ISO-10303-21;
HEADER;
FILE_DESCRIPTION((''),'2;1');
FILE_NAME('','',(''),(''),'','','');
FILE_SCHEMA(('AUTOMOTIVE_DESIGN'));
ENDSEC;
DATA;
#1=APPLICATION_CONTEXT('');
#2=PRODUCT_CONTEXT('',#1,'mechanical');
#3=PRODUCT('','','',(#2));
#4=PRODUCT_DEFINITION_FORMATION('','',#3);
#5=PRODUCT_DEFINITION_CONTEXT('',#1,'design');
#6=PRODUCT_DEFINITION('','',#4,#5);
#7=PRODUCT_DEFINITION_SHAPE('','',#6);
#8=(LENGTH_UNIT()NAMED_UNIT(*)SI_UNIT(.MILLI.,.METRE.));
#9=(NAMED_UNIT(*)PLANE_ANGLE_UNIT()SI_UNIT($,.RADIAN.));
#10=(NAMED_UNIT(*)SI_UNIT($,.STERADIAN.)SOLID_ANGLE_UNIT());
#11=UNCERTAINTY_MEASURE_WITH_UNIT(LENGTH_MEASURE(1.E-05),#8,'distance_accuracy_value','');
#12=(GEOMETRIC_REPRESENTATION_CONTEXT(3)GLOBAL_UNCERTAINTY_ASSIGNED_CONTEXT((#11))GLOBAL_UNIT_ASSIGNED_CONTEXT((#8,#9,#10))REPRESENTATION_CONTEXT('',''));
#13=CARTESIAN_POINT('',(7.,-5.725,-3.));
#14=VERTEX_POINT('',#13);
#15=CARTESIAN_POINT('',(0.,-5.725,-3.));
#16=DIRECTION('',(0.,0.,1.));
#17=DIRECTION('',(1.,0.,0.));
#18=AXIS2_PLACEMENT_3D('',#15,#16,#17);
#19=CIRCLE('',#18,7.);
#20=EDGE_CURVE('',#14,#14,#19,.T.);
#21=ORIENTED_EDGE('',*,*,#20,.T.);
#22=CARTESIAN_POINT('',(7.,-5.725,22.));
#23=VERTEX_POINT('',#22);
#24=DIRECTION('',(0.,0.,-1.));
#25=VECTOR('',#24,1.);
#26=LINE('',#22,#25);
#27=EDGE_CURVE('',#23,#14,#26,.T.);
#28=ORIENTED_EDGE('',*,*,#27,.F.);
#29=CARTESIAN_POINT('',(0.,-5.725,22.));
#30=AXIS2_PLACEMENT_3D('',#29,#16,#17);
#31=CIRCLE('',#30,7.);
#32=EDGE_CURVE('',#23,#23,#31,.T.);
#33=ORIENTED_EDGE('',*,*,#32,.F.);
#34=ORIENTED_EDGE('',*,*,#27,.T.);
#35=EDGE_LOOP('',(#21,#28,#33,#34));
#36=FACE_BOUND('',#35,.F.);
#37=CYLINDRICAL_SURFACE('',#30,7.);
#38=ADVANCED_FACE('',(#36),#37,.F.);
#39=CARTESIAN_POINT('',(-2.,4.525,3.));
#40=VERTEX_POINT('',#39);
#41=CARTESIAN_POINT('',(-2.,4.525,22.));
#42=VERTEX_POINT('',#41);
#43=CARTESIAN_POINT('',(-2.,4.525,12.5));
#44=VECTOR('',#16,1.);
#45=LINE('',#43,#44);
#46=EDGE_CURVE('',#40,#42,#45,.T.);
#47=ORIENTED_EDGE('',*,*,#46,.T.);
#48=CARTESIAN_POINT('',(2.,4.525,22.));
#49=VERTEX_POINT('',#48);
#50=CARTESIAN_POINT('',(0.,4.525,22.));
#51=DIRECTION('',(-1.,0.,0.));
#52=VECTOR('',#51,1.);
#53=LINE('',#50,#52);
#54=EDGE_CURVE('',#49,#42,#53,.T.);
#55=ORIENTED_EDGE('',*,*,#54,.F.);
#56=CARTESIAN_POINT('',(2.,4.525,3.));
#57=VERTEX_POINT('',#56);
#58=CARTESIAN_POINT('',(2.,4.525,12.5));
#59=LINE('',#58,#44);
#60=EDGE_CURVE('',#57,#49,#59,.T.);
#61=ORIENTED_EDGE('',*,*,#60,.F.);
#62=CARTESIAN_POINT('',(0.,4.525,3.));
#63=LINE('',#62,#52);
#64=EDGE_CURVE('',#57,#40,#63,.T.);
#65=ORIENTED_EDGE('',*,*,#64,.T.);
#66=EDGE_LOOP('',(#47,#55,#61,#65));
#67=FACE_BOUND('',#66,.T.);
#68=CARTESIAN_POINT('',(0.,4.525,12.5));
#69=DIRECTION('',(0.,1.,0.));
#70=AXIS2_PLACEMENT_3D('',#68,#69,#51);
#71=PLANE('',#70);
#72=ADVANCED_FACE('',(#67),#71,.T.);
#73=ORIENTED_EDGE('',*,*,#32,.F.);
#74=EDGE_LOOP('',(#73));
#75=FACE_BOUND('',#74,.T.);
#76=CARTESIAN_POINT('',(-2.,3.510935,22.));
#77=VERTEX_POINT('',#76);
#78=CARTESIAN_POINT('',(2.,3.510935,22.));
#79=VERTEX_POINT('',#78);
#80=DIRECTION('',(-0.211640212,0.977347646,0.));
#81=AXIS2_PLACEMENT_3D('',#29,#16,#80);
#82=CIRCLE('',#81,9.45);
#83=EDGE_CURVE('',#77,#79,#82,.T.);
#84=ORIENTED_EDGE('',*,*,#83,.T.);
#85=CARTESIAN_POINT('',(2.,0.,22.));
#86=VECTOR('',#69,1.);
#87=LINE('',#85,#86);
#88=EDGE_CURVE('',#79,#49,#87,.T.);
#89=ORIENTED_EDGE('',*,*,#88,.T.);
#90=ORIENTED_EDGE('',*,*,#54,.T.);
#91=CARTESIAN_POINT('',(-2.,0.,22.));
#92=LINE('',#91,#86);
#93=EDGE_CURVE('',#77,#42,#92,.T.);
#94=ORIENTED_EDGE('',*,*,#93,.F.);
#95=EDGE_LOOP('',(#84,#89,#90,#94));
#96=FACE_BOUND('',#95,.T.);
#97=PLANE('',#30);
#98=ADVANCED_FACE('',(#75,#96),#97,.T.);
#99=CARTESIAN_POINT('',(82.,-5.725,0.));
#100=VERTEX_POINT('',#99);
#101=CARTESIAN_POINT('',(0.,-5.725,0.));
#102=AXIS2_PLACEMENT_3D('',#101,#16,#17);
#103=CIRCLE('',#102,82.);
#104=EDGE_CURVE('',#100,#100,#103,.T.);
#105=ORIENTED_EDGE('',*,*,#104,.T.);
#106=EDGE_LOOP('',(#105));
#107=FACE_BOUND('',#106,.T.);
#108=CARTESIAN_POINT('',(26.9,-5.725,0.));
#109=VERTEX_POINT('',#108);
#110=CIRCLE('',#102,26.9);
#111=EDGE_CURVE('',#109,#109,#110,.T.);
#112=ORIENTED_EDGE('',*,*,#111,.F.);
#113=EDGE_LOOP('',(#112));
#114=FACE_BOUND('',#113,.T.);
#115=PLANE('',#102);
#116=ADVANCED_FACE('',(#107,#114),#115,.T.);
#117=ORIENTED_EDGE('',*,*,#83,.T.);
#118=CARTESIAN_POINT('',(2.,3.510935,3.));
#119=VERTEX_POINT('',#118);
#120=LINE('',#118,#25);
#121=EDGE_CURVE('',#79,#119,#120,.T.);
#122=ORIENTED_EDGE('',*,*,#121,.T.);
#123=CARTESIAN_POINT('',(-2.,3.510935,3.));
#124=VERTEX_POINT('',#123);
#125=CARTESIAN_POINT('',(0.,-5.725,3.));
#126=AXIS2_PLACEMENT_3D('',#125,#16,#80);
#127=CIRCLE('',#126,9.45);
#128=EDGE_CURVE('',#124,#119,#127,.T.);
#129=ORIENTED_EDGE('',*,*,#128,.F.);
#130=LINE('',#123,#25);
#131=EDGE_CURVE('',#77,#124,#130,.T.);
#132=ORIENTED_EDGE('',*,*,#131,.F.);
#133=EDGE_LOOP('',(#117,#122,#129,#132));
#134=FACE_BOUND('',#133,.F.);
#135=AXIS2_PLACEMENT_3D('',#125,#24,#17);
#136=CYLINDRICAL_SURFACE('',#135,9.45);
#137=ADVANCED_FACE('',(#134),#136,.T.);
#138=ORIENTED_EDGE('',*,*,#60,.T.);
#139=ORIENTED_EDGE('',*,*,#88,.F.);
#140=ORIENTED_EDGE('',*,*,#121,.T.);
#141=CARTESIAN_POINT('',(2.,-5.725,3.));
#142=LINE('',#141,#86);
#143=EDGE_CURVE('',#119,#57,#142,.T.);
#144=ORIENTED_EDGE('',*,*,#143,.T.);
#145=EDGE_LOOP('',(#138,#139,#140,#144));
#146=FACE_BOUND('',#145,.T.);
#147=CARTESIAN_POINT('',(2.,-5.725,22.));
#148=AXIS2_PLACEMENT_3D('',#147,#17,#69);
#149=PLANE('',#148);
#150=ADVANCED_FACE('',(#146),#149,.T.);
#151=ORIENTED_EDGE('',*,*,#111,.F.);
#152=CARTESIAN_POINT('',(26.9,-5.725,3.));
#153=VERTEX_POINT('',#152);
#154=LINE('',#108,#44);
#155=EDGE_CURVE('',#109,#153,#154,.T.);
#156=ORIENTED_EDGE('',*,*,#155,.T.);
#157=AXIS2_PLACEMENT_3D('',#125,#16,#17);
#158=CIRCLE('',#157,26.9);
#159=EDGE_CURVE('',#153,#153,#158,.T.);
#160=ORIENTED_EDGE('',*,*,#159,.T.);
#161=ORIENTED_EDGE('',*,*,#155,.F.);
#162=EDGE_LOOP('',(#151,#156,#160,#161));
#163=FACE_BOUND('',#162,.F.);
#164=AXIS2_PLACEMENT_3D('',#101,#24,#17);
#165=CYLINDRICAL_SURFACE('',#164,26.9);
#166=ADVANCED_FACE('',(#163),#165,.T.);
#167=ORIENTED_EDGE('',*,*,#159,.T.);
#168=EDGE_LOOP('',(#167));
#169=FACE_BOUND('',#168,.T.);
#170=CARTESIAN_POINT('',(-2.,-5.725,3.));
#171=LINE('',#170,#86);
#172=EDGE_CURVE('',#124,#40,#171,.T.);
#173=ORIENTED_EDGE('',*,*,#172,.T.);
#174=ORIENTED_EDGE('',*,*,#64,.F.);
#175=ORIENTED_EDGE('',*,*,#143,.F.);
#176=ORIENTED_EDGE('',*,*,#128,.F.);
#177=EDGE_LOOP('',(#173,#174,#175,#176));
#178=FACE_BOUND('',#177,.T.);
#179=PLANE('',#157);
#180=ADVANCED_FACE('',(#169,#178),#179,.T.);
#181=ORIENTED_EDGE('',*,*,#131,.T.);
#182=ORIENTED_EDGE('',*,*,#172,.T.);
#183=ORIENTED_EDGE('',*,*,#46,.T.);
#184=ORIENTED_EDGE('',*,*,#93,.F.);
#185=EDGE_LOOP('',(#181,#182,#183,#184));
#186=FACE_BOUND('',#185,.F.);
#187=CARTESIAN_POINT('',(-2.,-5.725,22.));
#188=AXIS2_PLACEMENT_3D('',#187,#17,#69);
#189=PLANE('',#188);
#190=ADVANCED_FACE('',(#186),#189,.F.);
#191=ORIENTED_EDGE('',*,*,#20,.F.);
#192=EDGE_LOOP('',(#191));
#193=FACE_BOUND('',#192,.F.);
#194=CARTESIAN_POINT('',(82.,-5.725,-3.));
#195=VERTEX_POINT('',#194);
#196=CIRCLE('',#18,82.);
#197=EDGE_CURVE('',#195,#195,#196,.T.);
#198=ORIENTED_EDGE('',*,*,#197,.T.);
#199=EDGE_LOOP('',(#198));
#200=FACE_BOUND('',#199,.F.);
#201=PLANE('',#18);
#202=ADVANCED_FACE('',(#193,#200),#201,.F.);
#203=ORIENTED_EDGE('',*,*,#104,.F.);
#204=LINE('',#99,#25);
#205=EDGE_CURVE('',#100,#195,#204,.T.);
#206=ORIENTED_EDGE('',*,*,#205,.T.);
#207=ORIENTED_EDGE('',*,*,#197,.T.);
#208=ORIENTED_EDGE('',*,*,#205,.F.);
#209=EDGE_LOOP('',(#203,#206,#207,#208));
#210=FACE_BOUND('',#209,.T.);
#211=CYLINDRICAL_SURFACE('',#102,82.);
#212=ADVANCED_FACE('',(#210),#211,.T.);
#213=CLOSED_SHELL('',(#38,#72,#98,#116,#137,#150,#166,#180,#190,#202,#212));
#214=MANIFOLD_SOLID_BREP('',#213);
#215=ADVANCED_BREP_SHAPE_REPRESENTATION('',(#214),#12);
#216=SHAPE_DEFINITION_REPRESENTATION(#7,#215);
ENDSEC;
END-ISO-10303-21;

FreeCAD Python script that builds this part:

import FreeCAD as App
import Part
import Sketcher
Q = App.Units.Quantity

doc = App.newDocument("Part")
params = doc.addObject("Spreadsheet::Sheet", "Params")
for row, (alias, value) in enumerate([
    ("sketch1_diameter", "164 mm"),
    ("pad1_length", "3 mm"),
    ("sketch2_diameter", "53.8 mm"),
    ("pad2_length", "3 mm"),
    ("sketch3_diameter", "18.9 mm"),
    ("pad3_length", "19 mm"),
    ("sketch4_width", "4 mm"),
    ("sketch4_height", "11.45 mm"),
    ("pad4_length", "19 mm"),
    ("sketch5_width", "4 mm"),
    ("sketch5_height", "11.45 mm"),
    ("pad5_length", "20 mm"),
    ("sketch6_width", "4 mm"),
    ("sketch6_height", "19 mm"),
    ("pocket1_length", "1.2 mm"),
    ("sketch7_diameter", "14 mm"),
    ("pocket2_length", "25 mm"),
], start=1):
    params.set(f"A{row}", alias)
    params.set(f"B{row}", "=" + value)
    params.setAlias(f"B{row}", alias)

body = doc.addObject("PartDesign::Body", "Body")

sketch1 = body.newObject("Sketcher::SketchObject", "Sketch")
sketch1.AttachmentSupport = (doc.getObject("XY_Plane"), [""])
sketch1.MapMode = "FlatFace"
sketch1.addGeometry(Part.Circle(App.Vector(0, 0, 0), App.Vector(0, 0, 1), 82), False)
sketch1.addConstraint(Sketcher.Constraint("Coincident", 0, 3, -1, 1))
sketch1.addConstraint(Sketcher.Constraint("Diameter", 0, Q("164 mm")))
sketch1.setExpression("Constraints[1]", "Params.sketch1_diameter")
pad1 = body.newObject("PartDesign::Pad", "Pad")
pad1.Profile = sketch1
pad1.setExpression("Length", "Params.pad1_length")
pad1.Reversed = True

sketch2 = body.newObject("Sketcher::SketchObject", "Sketch001")
sketch2.AttachmentSupport = (doc.getObject("XY_Plane"), [""])
sketch2.MapMode = "FlatFace"
sketch2.addGeometry(Part.Circle(App.Vector(0, 0, 0), App.Vector(0, 0, 1), 26.9), False)
sketch2.addConstraint(Sketcher.Constraint("Coincident", 0, 3, -1, 1))
sketch2.addConstraint(Sketcher.Constraint("Diameter", 0, Q("53.8 mm")))
sketch2.setExpression("Constraints[1]", "Params.sketch2_diameter")
pad2 = body.newObject("PartDesign::Pad", "Pad001")
pad2.Profile = sketch2
pad2.setExpression("Length", "Params.pad2_length")

sketch3 = body.newObject("Sketcher::SketchObject", "Sketch002")
sketch3.AttachmentSupport = (doc.getObject("XY_Plane"), [""])
sketch3.MapMode = "FlatFace"
sketch3.AttachmentOffset = App.Placement(App.Vector(0, 0, 3), App.Rotation())
sketch3.addGeometry(Part.Circle(App.Vector(0, 0, 0), App.Vector(0, 0, 1), 9.45), False)
sketch3.addConstraint(Sketcher.Constraint("Coincident", 0, 3, -1, 1))
sketch3.addConstraint(Sketcher.Constraint("Diameter", 0, Q("18.9 mm")))
sketch3.setExpression("Constraints[1]", "Params.sketch3_diameter")
pad3 = body.newObject("PartDesign::Pad", "Pad002")
pad3.Profile = sketch3
pad3.setExpression("Length", "Params.pad3_length")

sketch4 = body.newObject("Sketcher::SketchObject", "Sketch003")
sketch4.AttachmentSupport = (doc.getObject("XY_Plane"), [""])
sketch4.MapMode = "FlatFace"
sketch4.AttachmentOffset = App.Placement(App.Vector(0, 0, 22), App.Rotation())
sketch4.addGeometry(Part.LineSegment(App.Vector(-2, 5.725, 0), App.Vector(-2, -5.725, 0)), False)
sketch4.addGeometry(Part.LineSegment(App.Vector(-2, -5.725, 0), App.Vector(2, -5.725, 0)), False)
sketch4.addGeometry(Part.LineSegment(App.Vector(2, -5.725, 0), App.Vector(2, 5.725, 0)), False)
sketch4.addGeometry(Part.LineSegment(App.Vector(2, 5.725, 0), App.Vector(-2, 5.725, 0)), False)
sketch4.addConstraint(Sketcher.Constraint("Coincident", 0, 2, 1, 1))
sketch4.addConstraint(Sketcher.Constraint("Coincident", 1, 2, 2, 1))
sketch4.addConstraint(Sketcher.Constraint("Coincident", 2, 2, 3, 1))
sketch4.addConstraint(Sketcher.Constraint("Coincident", 3, 2, 0, 1))
sketch4.addConstraint(Sketcher.Constraint("Vertical", 0))
sketch4.addConstraint(Sketcher.Constraint("Horizontal", 1))
sketch4.addConstraint(Sketcher.Constraint("Vertical", 2))
sketch4.addConstraint(Sketcher.Constraint("Horizontal", 3))
sketch4.addConstraint(Sketcher.Constraint("Symmetric", 0, 2, 2, 2, -1, 1))
sketch4.addConstraint(Sketcher.Constraint("DistanceX", 1, 1, 1, 2, Q("4 mm")))
sketch4.addConstraint(Sketcher.Constraint("DistanceY", 0, 2, 0, 1, Q("11.45 mm")))
sketch4.setExpression("Constraints[9]", "Params.sketch4_width")
sketch4.setExpression("Constraints[10]", "Params.sketch4_height")
pad4 = body.newObject("PartDesign::Pad", "Pad003")
pad4.Profile = sketch4
pad4.setExpression("Length", "Params.pad4_length")
pad4.Reversed = True
body2 = doc.addObject("PartDesign::Body", "Body001")
doc.recompute()

body.Placement = App.Placement(App.Vector(0, -5.725, 0), App.Rotation(App.Vector(0, 0, 1), 0))
boolean = body2.newObject("PartDesign::Boolean", "Boolean")
boolean.Type = "Fuse"
boolean.addObjects([body])

sketch5 = body2.newObject("Sketcher::SketchObject", "Sketch004")
sketch5.AttachmentSupport = (doc.getObject("XY_Plane001"), [""])
sketch5.MapMode = "FlatFace"
sketch5.AttachmentOffset = App.Placement(App.Vector(0, 0, 22), App.Rotation())
sketch5.addGeometry(Part.LineSegment(App.Vector(-2, 5.725, 0), App.Vector(-2, -5.725, 0)), False)
sketch5.addGeometry(Part.LineSegment(App.Vector(-2, -5.725, 0), App.Vector(2, -5.725, 0)), False)
sketch5.addGeometry(Part.LineSegment(App.Vector(2, -5.725, 0), App.Vector(2, 5.725, 0)), False)
sketch5.addGeometry(Part.LineSegment(App.Vector(2, 5.725, 0), App.Vector(-2, 5.725, 0)), False)
sketch5.addConstraint(Sketcher.Constraint("Coincident", 0, 2, 1, 1))
sketch5.addConstraint(Sketcher.Constraint("Coincident", 1, 2, 2, 1))
sketch5.addConstraint(Sketcher.Constraint("Coincident", 2, 2, 3, 1))
sketch5.addConstraint(Sketcher.Constraint("Coincident", 3, 2, 0, 1))
sketch5.addConstraint(Sketcher.Constraint("Vertical", 0))
sketch5.addConstraint(Sketcher.Constraint("Horizontal", 1))
sketch5.addConstraint(Sketcher.Constraint("Vertical", 2))
sketch5.addConstraint(Sketcher.Constraint("Horizontal", 3))
sketch5.addConstraint(Sketcher.Constraint("Symmetric", 0, 2, 2, 2, -1, 1))
sketch5.addConstraint(Sketcher.Constraint("DistanceX", 1, 1, 1, 2, Q("4 mm")))
sketch5.addConstraint(Sketcher.Constraint("DistanceY", 0, 2, 0, 1, Q("11.45 mm")))
sketch5.setExpression("Constraints[9]", "Params.sketch5_width")
sketch5.setExpression("Constraints[10]", "Params.sketch5_height")
pad5 = body2.newObject("PartDesign::Pad", "Pad004")
pad5.Profile = sketch5
pad5.setExpression("Length", "Params.pad5_length")
pad5.Reversed = True

sketch6 = body2.newObject("Sketcher::SketchObject", "Sketch005")
sketch6.AttachmentSupport = (doc.getObject("XZ_Plane001"), [""])
sketch6.MapMode = "FlatFace"
sketch6.AttachmentOffset = App.Placement(App.Vector(0, 0, -5.725), App.Rotation())
sketch6.addGeometry(Part.LineSegment(App.Vector(2, 22, 0), App.Vector(2, 3, 0)), False)
sketch6.addGeometry(Part.LineSegment(App.Vector(2, 3, 0), App.Vector(-2, 3, 0)), False)
sketch6.addGeometry(Part.LineSegment(App.Vector(-2, 3, 0), App.Vector(-2, 22, 0)), False)
sketch6.addGeometry(Part.LineSegment(App.Vector(-2, 22, 0), App.Vector(2, 22, 0)), False)
sketch6.addConstraint(Sketcher.Constraint("Coincident", 0, 2, 1, 1))
sketch6.addConstraint(Sketcher.Constraint("Coincident", 1, 2, 2, 1))
sketch6.addConstraint(Sketcher.Constraint("Coincident", 2, 2, 3, 1))
sketch6.addConstraint(Sketcher.Constraint("Coincident", 3, 2, 0, 1))
sketch6.addConstraint(Sketcher.Constraint("Vertical", 0))
sketch6.addConstraint(Sketcher.Constraint("Horizontal", 1))
sketch6.addConstraint(Sketcher.Constraint("Vertical", 2))
sketch6.addConstraint(Sketcher.Constraint("Horizontal", 3))
sketch6.addConstraint(Sketcher.Constraint("DistanceX", 1, 2, 1, 1, Q("4 mm")))
sketch6.addConstraint(Sketcher.Constraint("DistanceY", 0, 2, 0, 1, Q("19 mm")))
sketch6.addConstraint(Sketcher.Constraint("DistanceX", -1, 1, 0, 2, Q("2 mm")))
sketch6.addConstraint(Sketcher.Constraint("DistanceY", -1, 1, 0, 2, Q("3 mm")))
sketch6.setExpression("Constraints[8]", "Params.sketch6_width")
sketch6.setExpression("Constraints[9]", "Params.sketch6_height")
pocket1 = body2.newObject("PartDesign::Pocket", "Pocket")
pocket1.Profile = sketch6
pocket1.setExpression("Length", "Params.pocket1_length")
pocket1.Reversed = True

sketch7 = body2.newObject("Sketcher::SketchObject", "Sketch006")
sketch7.AttachmentSupport = (doc.getObject("XY_Plane001"), [""])
sketch7.MapMode = "FlatFace"
sketch7.AttachmentOffset = App.Placement(App.Vector(0, 0, 22), App.Rotation())
sketch7.addGeometry(Part.Circle(App.Vector(0, -5.725, 0), App.Vector(0, 0, 1), 7), False)
sketch7.addConstraint(Sketcher.Constraint("PointOnObject", 0, 3, -2))
sketch7.addConstraint(Sketcher.Constraint("Diameter", 0, Q("14 mm")))
sketch7.addConstraint(Sketcher.Constraint("DistanceY", 0, 3, -1, 1, Q("5.725 mm")))
sketch7.setExpression("Constraints[1]", "Params.sketch7_diameter")
pocket2 = body2.newObject("PartDesign::Pocket", "Pocket001")
pocket2.Profile = sketch7
pocket2.setExpression("Length", "Params.pocket2_length")

doc.recompute()
